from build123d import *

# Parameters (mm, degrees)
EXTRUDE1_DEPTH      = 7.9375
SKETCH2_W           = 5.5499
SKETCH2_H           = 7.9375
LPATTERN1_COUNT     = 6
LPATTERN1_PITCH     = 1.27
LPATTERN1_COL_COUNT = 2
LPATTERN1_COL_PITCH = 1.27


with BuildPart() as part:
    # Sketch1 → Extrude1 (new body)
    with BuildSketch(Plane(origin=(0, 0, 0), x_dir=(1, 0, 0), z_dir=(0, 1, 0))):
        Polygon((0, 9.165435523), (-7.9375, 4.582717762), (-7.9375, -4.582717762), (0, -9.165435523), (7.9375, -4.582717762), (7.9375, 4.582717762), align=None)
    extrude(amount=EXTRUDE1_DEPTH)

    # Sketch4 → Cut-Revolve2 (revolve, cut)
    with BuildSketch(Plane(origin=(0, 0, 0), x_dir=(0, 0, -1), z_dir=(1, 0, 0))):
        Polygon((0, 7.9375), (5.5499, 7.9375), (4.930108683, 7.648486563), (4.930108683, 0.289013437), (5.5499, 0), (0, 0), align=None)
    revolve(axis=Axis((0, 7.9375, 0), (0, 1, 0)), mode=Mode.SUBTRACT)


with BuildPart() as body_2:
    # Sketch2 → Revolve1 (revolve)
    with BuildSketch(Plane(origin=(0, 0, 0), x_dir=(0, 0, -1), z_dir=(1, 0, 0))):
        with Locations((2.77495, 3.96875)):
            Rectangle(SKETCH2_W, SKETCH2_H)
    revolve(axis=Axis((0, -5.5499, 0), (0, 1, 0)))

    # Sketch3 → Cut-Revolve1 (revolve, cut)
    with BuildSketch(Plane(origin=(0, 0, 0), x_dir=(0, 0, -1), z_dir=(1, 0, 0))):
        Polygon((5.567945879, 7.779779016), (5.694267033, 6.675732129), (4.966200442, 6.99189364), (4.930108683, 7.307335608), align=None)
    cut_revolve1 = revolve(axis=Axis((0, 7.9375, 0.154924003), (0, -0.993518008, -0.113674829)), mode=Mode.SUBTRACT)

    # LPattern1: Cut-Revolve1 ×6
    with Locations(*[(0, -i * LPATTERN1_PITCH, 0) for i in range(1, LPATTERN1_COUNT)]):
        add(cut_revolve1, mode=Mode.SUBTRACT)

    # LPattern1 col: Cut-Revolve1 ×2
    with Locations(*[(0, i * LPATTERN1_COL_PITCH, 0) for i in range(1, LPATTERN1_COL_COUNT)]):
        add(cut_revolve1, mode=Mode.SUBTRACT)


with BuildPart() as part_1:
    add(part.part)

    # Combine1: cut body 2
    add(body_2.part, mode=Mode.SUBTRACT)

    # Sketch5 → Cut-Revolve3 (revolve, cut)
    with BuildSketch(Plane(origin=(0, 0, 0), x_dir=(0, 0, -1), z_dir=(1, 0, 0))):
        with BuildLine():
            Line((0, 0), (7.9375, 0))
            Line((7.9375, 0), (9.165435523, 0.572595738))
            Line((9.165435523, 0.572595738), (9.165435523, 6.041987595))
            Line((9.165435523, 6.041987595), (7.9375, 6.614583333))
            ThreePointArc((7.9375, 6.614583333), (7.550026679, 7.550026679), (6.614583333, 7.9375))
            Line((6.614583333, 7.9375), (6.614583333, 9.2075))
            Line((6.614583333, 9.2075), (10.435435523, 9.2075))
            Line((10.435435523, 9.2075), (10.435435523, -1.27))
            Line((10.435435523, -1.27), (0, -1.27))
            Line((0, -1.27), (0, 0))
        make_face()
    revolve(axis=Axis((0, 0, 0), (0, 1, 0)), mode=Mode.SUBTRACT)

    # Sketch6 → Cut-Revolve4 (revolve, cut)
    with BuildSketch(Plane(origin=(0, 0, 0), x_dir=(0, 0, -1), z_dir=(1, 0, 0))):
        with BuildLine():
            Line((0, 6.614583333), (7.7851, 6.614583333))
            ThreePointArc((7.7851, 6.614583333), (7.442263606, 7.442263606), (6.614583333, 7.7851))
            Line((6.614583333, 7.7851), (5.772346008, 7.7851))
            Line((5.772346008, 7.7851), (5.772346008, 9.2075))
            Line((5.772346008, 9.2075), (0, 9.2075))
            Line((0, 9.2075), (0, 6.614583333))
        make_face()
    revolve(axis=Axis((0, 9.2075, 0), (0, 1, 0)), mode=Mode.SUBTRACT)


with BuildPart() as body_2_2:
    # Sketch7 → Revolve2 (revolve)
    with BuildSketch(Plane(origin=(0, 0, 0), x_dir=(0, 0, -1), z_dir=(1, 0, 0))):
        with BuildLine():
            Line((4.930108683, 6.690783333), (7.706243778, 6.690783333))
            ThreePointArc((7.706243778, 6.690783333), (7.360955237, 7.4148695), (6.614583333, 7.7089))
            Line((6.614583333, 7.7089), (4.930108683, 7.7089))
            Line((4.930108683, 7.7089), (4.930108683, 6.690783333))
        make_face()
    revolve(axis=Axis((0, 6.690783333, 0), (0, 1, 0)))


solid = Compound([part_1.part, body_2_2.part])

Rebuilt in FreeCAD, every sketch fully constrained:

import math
import FreeCAD as App
import Part
import Sketcher
Q = App.Units.Quantity

doc = App.newDocument("Part")
body = doc.addObject("PartDesign::Body", "Body")

# Sketch on XZ plane
sketch1 = body.newObject("Sketcher::SketchObject", "Sketch")
sketch1.AttachmentSupport = (doc.getObject("XZ_Plane"), [""])
sketch1.MapMode = "FlatFace"
sketch1.addGeometry([
    Part.LineSegment(App.Vector(0, -9, 0), App.Vector(-8, -5, 0)),  # 0
    Part.LineSegment(App.Vector(-8, -5, 0), App.Vector(-8, 5, 0)),  # 1
    Part.LineSegment(App.Vector(-8, 5, 0), App.Vector(0, 9, 0)),  # 2
    Part.LineSegment(App.Vector(0, 9, 0), App.Vector(8, 5, 0)),  # 3
    Part.LineSegment(App.Vector(8, 5, 0), App.Vector(8, -5, 0)),  # 4
    Part.LineSegment(App.Vector(8, -5, 0), App.Vector(0, -9, 0)),  # 5
], False)
sketch1.addConstraint([
    Sketcher.Constraint("Coincident", 0, 2, 1, 1),
    Sketcher.Constraint("Coincident", 1, 2, 2, 1),
    Sketcher.Constraint("Coincident", 2, 2, 3, 1),
    Sketcher.Constraint("Coincident", 3, 2, 4, 1),
    Sketcher.Constraint("Coincident", 4, 2, 5, 1),
    Sketcher.Constraint("Coincident", 5, 2, 0, 1),
    Sketcher.Constraint("Vertical", 1),
    Sketcher.Constraint("Vertical", 4),
    Sketcher.Constraint("Symmetric", 0, 2, 3, 2, -1, 1),
    Sketcher.Constraint("Symmetric", 2, 2, 5, 2, -1, 1),
    Sketcher.Constraint("PointOnObject", 2, 2, -2),
    Sketcher.Constraint("Parallel", 2, 5),
    Sketcher.Constraint("Horizontal", 1, 2, 3, 2),
    Sketcher.Constraint("Angle", 0, Q("150 deg")),
    Sketcher.Constraint("DistanceX", 0, 2, -1, 1, Q("0.3125 in")),
    Sketcher.Constraint("DistanceY", 1, 1, 1, 2, Q("9.165436 mm")),
])
pad1 = body.newObject("PartDesign::Pad", "Pad")
pad1.Profile = sketch1
pad1.Length = Q("0.3125 in")
pad1.Reversed = True

# Sketch on YZ plane
sketch2 = body.newObject("Sketcher::SketchObject", "Sketch001")
sketch2.AttachmentSupport = (doc.getObject("YZ_Plane"), [""])
sketch2.MapMode = "FlatFace"
sketch2.addGeometry([
    Part.LineSegment(App.Vector(7.9, -5.5, 0), App.Vector(7.9, 0, 0)),  # 0
    Part.LineSegment(App.Vector(7.9, 0, 0), App.Vector(0, 0, 0)),  # 1
    Part.LineSegment(App.Vector(0, 0, 0), App.Vector(0, -5.5, 0)),  # 2
    Part.LineSegment(App.Vector(0, -5.5, 0), App.Vector(0.3, -4.9, 0)),  # 3
    Part.LineSegment(App.Vector(0.3, -4.9, 0), App.Vector(7.6, -4.9, 0)),  # 4
    Part.LineSegment(App.Vector(7.6, -4.9, 0), App.Vector(7.9, -5.5, 0)),  # 5
], False)
sketch2.addConstraint([
    Sketcher.Constraint("Coincident", 0, 2, 1, 1),
    Sketcher.Constraint("Coincident", 1, 2, 2, 1),
    Sketcher.Constraint("Coincident", 2, 2, 3, 1),
    Sketcher.Constraint("Coincident", 3, 2, 4, 1),
    Sketcher.Constraint("Coincident", 4, 2, 5, 1),
    Sketcher.Constraint("Coincident", 5, 2, 0, 1),
    Sketcher.Constraint("Vertical", 0),
    Sketcher.Constraint("Horizontal", 1),
    Sketcher.Constraint("Vertical", 2),
    Sketcher.Constraint("Horizontal", 4),
    Sketcher.Constraint("Coincident", 1, 2, -1, 1),
    Sketcher.Constraint("Horizontal", 2, 2, 5, 2),
    Sketcher.Constraint("Equal", 3, 5),
    Sketcher.Constraint("Angle", 3, Q("65 deg")),
    Sketcher.Constraint("DistanceX", 1, 2, 1, 1, Q("0.3125 in")),
    Sketcher.Constraint("DistanceY", 0, 1, 0, 2, Q("0.2185 in")),
    Sketcher.Constraint("DistanceX", 4, 1, 4, 2, Q("7.359473 mm")),
])
groove = body.newObject("PartDesign::Groove", "Groove")
groove.Profile = sketch2
groove.ReferenceAxis = (sketch2, ["H_Axis"])
groove.Angle = 360
body2 = doc.addObject("PartDesign::Body", "Body001")

# Sketch on YZ plane
sketch3 = body2.newObject("Sketcher::SketchObject", "Sketch002")
sketch3.AttachmentSupport = (doc.getObject("YZ_Plane001"), [""])
sketch3.MapMode = "FlatFace"
sketch3.addGeometry([
    Part.LineSegment(App.Vector(8, 0, 0), App.Vector(0, 0, 0)),
    Part.LineSegment(App.Vector(0, 0, 0), App.Vector(0, -6, 0)),
    Part.LineSegment(App.Vector(0, -6, 0), App.Vector(8, -6, 0)),
    Part.LineSegment(App.Vector(8, -6, 0), App.Vector(8, 0, 0)),
], False)
sketch3.addConstraint([
    Sketcher.Constraint("Coincident", 0, 2, 1, 1),
    Sketcher.Constraint("Coincident", 1, 2, 2, 1),
    Sketcher.Constraint("Coincident", 2, 2, 3, 1),
    Sketcher.Constraint("Coincident", 3, 2, 0, 1),
    Sketcher.Constraint("Horizontal", 0),
    Sketcher.Constraint("Vertical", 1),
    Sketcher.Constraint("Horizontal", 2),
    Sketcher.Constraint("Vertical", 3),
    Sketcher.Constraint("Coincident", 0, 2, -1, 1),
    Sketcher.Constraint("DistanceX", 0, 2, 0, 1, Q("0.3125 in")),
    Sketcher.Constraint("DistanceY", 1, 2, 1, 1, Q("0.2185 in")),
])
revolution = body2.newObject("PartDesign::Revolution", "Revolution")
revolution.Profile = sketch3
revolution.ReferenceAxis = (sketch3, ["H_Axis"])
revolution.Angle = 360

# Sketch on YZ plane
sketch4 = body2.newObject("Sketcher::SketchObject", "Sketch003")
sketch4.AttachmentSupport = (doc.getObject("YZ_Plane001"), [""])
sketch4.MapMode = "FlatFace"
sketch4.addGeometry([
    Part.LineSegment(App.Vector(6.68, -5.69, 0), App.Vector(7.78, -5.57, 0)),
    Part.LineSegment(App.Vector(7.78, -5.57, 0), App.Vector(7.31, -4.93, 0)),
    Part.LineSegment(App.Vector(7.31, -4.93, 0), App.Vector(6.99, -4.97, 0)),
    Part.LineSegment(App.Vector(6.99, -4.97, 0), App.Vector(6.68, -5.69, 0)),
], False)
sketch4.addGeometry(Part.LineSegment(App.Vector(7.14, 0.06, 0), App.Vector(6.03, -0.06, 0)), True)  # axis
sketch4.addConstraint([
    Sketcher.Constraint("Coincident", 0, 2, 1, 1),
    Sketcher.Constraint("Coincident", 1, 2, 2, 1),
    Sketcher.Constraint("Coincident", 2, 2, 3, 1),
    Sketcher.Constraint("Coincident", 3, 2, 0, 1),
    Sketcher.Constraint("Parallel", 0, 2),
    Sketcher.Constraint("Parallel", 2, 4),
    Sketcher.Constraint("Equal", 1, 3),
    Sketcher.Constraint("Equal", 0, 4),
    Sketcher.Constraint("Distance", 1, Q("0.03125 in")),
    Sketcher.Constraint("Distance", 2, Q("0.0125 in")),
    Sketcher.Constraint("DistanceX", 1, 2, 0, 2, Q("0.0186001 in")),
    Sketcher.Constraint("DistanceY", 2, 2, -1, 1, Q("4.9662 mm")),
    Sketcher.Constraint("Distance", 0, Q("1.11125 mm")),
    Sketcher.Constraint("DistanceX", -1, 1, 0, 2, Q("7.779779 mm")),
    Sketcher.Constraint("DistanceY", -1, 1, 4, 1, Q("0.063161 mm")),
    Sketcher.Constraint("DistanceX", -1, 1, 4, 2, Q("6.031441 mm")),
])
groove2 = body2.newObject("PartDesign::Groove", "Groove001")
groove2.Profile = sketch4
groove2.ReferenceAxis = (sketch4, ["Axis0"])
groove2.Angle = 360
doc.recompute()

linearpattern = body2.newObject("PartDesign::LinearPattern", "LinearPattern")
linearpattern.Originals = [groove2]
linearpattern.Direction = (doc.getObject("Y_Axis001"), [""])
linearpattern.Mode = "offset"
linearpattern.Offset = Q("0.05 in")
linearpattern.Occurrences = 6
linearpattern.Reversed = True
body2.Tip = linearpattern
doc.recompute()

linearpattern2 = body2.newObject("PartDesign::LinearPattern", "LinearPattern001")
linearpattern2.Originals = [groove2]
linearpattern2.Direction = (doc.getObject("Y_Axis001"), [""])
linearpattern2.Mode = "offset"
linearpattern2.Offset = Q("0.05 in")
linearpattern2.Occurrences = 2
body2.Tip = linearpattern2
doc.recompute()

boolean = body.newObject("PartDesign::Boolean", "Boolean")
boolean.Type = "Cut"
boolean.addObjects([body2])

# Sketch on YZ plane
sketch5 = body.newObject("Sketcher::SketchObject", "Sketch004")
sketch5.AttachmentSupport = (doc.getObject("YZ_Plane"), [""])
sketch5.MapMode = "FlatFace"
sketch5.addGeometry([
    Part.LineSegment(App.Vector(0, -7.9, 0), App.Vector(0, 0, 0)),  # 0
    Part.LineSegment(App.Vector(0, 0, 0), App.Vector(-1.3, 0, 0)),  # 1
    Part.LineSegment(App.Vector(-1.3, 0, 0), App.Vector(-1.3, -10.4, 0)),  # 2
    Part.LineSegment(App.Vector(-1.3, -10.4, 0), App.Vector(9.2, -10.4, 0)),  # 3
    Part.LineSegment(App.Vector(9.2, -10.4, 0), App.Vector(9.2, -6.6, 0)),  # 4
    Part.LineSegment(App.Vector(9.2, -6.6, 0), App.Vector(7.9, -6.6, 0)),  # 5
    Part.ArcOfCircle(Part.Circle(App.Vector(6.6, -6.6, 0), App.Vector(0, 0, 1), 1.3), math.radians(-90), math.radians(0)),  # 6
    Part.LineSegment(App.Vector(6.6, -7.9, 0), App.Vector(6, -9.2, 0)),  # 7
    Part.LineSegment(App.Vector(6, -9.2, 0), App.Vector(0.6, -9.2, 0)),  # 8
    Part.LineSegment(App.Vector(0.6, -9.2, 0), App.Vector(0, -7.9, 0)),  # 9
], False)
sketch5.addConstraint([
    Sketcher.Constraint("Coincident", 0, 2, 1, 1),
    Sketcher.Constraint("Coincident", 1, 2, 2, 1),
    Sketcher.Constraint("Coincident", 2, 2, 3, 1),
    Sketcher.Constraint("Coincident", 3, 2, 4, 1),
    Sketcher.Constraint("Coincident", 4, 2, 5, 1),
    Sketcher.Constraint("Coincident", 5, 2, 6, 2),
    Sketcher.Constraint("Coincident", 6, 1, 7, 1),
    Sketcher.Constraint("Coincident", 7, 2, 8, 1),
    Sketcher.Constraint("Coincident", 8, 2, 9, 1),
    Sketcher.Constraint("Coincident", 9, 2, 0, 1),
    Sketcher.Constraint("Vertical", 0),
    Sketcher.Constraint("Horizontal", 1),
    Sketcher.Constraint("Vertical", 2),
    Sketcher.Constraint("Horizontal", 3),
    Sketcher.Constraint("Vertical", 4),
    Sketcher.Constraint("Horizontal", 5),
    Sketcher.Constraint("Horizontal", 8),
    Sketcher.Constraint("Coincident", 0, 2, -1, 1),
    Sketcher.Constraint("Horizontal", 6, 3, 4, 2),
    Sketcher.Constraint("Horizontal", 6, 1, 9, 2),
    Sketcher.Constraint("Equal", 1, 5),
    Sketcher.Constraint("Equal", 7, 9),
    Sketcher.Constraint("Angle", 7, Q("-115 deg")),
    Sketcher.Constraint("DistanceX", 1, 2, 1, 1, Q("0.05 in")),
    Sketcher.Constraint("DistanceY", 0, 1, 0, 2, Q("0.3125 in")),
    Sketcher.Constraint("DistanceY", 3, 2, 7, 2, Q("0.05 in")),
    Sketcher.Constraint("DistanceX", 3, 1, 3, 2, Q("0.4125 in")),
    Sketcher.Constraint("Radius", 6, Q("1.322917 mm")),
    Sketcher.Constraint("DistanceX", 8, 2, 8, 1, Q("5.469392 mm")),
    Sketcher.Constraint("DistanceY", 2, 2, 2, 1, Q("10.435436 mm")),
])
groove3 = body.newObject("PartDesign::Groove", "Groove002")
groove3.Profile = sketch5
groove3.ReferenceAxis = (sketch5, ["H_Axis"])
groove3.Angle = 360

# Sketch on YZ plane
sketch6 = body.newObject("Sketcher::SketchObject", "Sketch005")
sketch6.AttachmentSupport = (doc.getObject("YZ_Plane"), [""])
sketch6.MapMode = "FlatFace"
sketch6.addGeometry([
    Part.LineSegment(App.Vector(6.6, 0, 0), App.Vector(6.6, -7.8, 0)),  # 0
    Part.ArcOfCircle(Part.Circle(App.Vector(6.6, -6.6, 0), App.Vector(0, 0, 1), 1.2), math.radians(-90), math.radians(0)),  # 1
    Part.LineSegment(App.Vector(7.8, -6.6, 0), App.Vector(7.8, -5.8, 0)),  # 2
    Part.LineSegment(App.Vector(7.8, -5.8, 0), App.Vector(9.2, -5.8, 0)),  # 3
    Part.LineSegment(App.Vector(9.2, -5.8, 0), App.Vector(9.2, 0, 0)),  # 4
    Part.LineSegment(App.Vector(9.2, 0, 0), App.Vector(6.6, 0, 0)),  # 5
], False)
sketch6.addConstraint([
    Sketcher.Constraint("Coincident", 0, 2, 1, 1),
    Sketcher.Constraint("Tangent", 1, 2, 2, 1),
    Sketcher.Constraint("Coincident", 2, 2, 3, 1),
    Sketcher.Constraint("Coincident", 3, 2, 4, 1),
    Sketcher.Constraint("Coincident", 4, 2, 5, 1),
    Sketcher.Constraint("Coincident", 5, 2, 0, 1),
    Sketcher.Constraint("Vertical", 0),
    Sketcher.Constraint("Vertical", 2),
    Sketcher.Constraint("Horizontal", 3),
    Sketcher.Constraint("Vertical", 4),
    Sketcher.Constraint("Horizontal", 5),
    Sketcher.Constraint("PointOnObject", 4, 2, -1),
    Sketcher.Constraint("Vertical", 1, 3, 0, 2),
    Sketcher.Constraint("DistanceX", 3, 1, 3, 2, Q("0.056 in")),
    Sketcher.Constraint("DistanceY", 0, 2, 0, 1, Q("0.3065 in")),
    Sketcher.Constraint("DistanceX", -1, 1, 1, 2, Q("0.3065 in")),
    Sketcher.Constraint("Radius", 1, Q("1.170517 mm")),
    Sketcher.Constraint("DistanceY", 2, 1, 2, 2, Q("0.842237 mm")),
])
groove4 = body.newObject("PartDesign::Groove", "Groove003")
groove4.Profile = sketch6
groove4.ReferenceAxis = (sketch6, ["H_Axis"])
groove4.Angle = 360
body3 = doc.addObject("PartDesign::Body", "Body002")

# Sketch on YZ plane
sketch7 = body3.newObject("Sketcher::SketchObject", "Sketch006")
sketch7.AttachmentSupport = (doc.getObject("YZ_Plane002"), [""])
sketch7.MapMode = "FlatFace"
sketch7.addGeometry([
    Part.LineSegment(App.Vector(6.7, -4.9, 0), App.Vector(6.7, -7.7, 0)),
    Part.ArcOfCircle(Part.Circle(App.Vector(6.6, -6.6, 0), App.Vector(0, 0, 1), 1.1), math.radians(-86), math.radians(0)),
    Part.LineSegment(App.Vector(7.7, -6.6, 0), App.Vector(7.7, -4.9, 0)),
    Part.LineSegment(App.Vector(7.7, -4.9, 0), App.Vector(6.7, -4.9, 0)),
], False)
sketch7.addConstraint([
    Sketcher.Constraint("Coincident", 0, 2, 1, 1),
    Sketcher.Constraint("Tangent", 1, 2, 2, 1),
    Sketcher.Constraint("Coincident", 2, 2, 3, 1),
    Sketcher.Constraint("Coincident", 3, 2, 0, 1),
    Sketcher.Constraint("Vertical", 0),
    Sketcher.Constraint("Vertical", 2),
    Sketcher.Constraint("Horizontal", 3),
    Sketcher.Constraint("DistanceX", 1, 3, 0, 2, Q("0.003 in")),
    Sketcher.Constraint("DistanceX", -1, 1, 1, 2, Q("0.3035 in")),
    Sketcher.Constraint("Radius", 1, Q("1.094317 mm")),
    Sketcher.Constraint("DistanceY", 0, 2, 0, 1, Q("2.776135 mm")),
    Sketcher.Constraint("DistanceY", 2, 2, -1, 1, Q("4.930109 mm")),
])
revolution2 = body3.newObject("PartDesign::Revolution", "Revolution001")
revolution2.Profile = sketch7
revolution2.ReferenceAxis = (sketch7, ["H_Axis"])
revolution2.Angle = 360

doc.recompute()
